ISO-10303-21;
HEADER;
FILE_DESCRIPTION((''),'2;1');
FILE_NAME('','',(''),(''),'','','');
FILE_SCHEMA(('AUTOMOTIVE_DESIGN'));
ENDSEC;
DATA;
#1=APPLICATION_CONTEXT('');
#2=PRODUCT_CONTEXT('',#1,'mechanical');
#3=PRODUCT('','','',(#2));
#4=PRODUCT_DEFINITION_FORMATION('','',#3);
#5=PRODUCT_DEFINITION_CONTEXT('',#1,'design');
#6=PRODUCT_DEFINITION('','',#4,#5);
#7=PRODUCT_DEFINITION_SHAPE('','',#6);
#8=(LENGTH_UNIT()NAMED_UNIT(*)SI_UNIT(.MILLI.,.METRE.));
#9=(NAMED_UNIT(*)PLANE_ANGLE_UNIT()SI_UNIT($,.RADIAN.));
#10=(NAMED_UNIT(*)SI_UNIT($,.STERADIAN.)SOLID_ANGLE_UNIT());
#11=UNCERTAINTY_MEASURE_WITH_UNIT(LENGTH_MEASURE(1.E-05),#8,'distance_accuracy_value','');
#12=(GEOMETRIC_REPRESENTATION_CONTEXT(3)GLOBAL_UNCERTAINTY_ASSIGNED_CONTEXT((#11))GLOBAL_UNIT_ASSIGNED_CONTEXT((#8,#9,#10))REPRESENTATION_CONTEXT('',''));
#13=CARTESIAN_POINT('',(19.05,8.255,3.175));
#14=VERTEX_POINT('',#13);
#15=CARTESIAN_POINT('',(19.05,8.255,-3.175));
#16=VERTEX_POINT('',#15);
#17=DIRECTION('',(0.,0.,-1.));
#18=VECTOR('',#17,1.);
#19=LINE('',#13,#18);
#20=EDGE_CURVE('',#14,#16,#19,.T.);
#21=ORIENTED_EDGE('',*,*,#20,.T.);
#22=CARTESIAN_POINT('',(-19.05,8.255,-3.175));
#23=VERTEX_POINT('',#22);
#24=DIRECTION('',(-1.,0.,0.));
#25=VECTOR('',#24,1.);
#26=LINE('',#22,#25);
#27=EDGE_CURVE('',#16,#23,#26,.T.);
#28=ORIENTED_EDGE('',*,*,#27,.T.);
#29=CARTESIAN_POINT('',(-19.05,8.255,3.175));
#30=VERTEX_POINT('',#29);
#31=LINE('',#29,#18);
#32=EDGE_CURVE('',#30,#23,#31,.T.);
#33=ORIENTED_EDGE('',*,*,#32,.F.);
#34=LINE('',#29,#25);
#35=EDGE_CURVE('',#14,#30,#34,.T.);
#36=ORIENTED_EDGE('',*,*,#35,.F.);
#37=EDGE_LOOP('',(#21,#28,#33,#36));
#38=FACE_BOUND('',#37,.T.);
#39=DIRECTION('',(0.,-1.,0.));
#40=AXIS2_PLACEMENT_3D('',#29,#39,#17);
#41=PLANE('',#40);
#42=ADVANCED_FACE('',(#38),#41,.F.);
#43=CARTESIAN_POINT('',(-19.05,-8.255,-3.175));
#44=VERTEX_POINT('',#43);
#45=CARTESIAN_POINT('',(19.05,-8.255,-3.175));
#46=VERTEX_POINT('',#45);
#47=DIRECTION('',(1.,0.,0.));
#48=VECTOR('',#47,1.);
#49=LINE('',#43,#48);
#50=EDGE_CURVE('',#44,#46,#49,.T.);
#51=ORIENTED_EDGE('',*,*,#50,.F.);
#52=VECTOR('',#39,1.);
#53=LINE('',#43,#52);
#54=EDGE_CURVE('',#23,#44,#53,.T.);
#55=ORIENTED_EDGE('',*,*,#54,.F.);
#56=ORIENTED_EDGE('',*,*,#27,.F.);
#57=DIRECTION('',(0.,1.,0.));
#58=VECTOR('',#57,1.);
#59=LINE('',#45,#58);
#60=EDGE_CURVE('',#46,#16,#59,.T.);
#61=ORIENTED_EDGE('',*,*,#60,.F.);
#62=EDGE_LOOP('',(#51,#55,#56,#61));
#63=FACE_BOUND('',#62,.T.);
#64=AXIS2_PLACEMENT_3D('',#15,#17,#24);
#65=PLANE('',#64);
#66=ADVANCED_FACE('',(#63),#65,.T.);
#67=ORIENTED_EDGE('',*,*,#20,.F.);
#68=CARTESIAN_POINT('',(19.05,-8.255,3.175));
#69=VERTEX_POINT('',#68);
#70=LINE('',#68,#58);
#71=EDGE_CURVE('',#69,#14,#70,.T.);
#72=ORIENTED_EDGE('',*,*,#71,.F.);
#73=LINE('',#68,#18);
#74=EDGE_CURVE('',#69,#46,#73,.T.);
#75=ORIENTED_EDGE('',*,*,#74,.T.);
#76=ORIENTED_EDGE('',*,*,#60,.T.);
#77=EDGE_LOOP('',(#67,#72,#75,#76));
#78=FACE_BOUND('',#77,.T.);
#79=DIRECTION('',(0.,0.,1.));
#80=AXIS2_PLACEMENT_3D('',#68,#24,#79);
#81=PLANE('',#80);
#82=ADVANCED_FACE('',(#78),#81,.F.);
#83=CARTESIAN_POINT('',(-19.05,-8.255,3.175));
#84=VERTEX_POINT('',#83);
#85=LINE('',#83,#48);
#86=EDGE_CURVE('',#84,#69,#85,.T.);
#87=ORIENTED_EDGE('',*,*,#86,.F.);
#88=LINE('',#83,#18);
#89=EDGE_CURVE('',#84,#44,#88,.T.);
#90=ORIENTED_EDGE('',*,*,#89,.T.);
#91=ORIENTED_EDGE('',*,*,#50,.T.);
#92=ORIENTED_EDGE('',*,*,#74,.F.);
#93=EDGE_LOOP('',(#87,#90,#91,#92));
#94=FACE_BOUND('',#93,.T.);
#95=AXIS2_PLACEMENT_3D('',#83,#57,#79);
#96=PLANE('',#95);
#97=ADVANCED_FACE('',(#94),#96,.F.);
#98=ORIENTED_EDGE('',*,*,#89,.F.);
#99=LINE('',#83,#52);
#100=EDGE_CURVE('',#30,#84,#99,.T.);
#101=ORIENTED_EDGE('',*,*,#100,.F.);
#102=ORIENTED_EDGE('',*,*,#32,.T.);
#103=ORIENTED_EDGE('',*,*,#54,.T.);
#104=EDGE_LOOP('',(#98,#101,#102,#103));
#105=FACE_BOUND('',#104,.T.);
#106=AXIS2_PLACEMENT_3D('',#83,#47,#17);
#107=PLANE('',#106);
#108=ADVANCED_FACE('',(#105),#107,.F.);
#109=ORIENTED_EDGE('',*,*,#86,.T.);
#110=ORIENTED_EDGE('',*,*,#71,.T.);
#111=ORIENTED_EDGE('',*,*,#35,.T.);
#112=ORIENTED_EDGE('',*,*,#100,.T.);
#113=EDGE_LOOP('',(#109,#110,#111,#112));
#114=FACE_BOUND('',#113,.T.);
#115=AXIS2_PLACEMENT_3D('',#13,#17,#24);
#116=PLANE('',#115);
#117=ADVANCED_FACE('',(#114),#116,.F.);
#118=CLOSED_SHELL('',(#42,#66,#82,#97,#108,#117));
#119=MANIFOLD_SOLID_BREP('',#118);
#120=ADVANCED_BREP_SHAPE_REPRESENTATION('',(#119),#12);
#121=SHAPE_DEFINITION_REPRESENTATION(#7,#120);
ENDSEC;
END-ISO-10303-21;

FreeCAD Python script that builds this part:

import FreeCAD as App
import Part
import Sketcher

V = App.Vector
Q = App.Units.Quantity

doc = App.newDocument("Part")
body = doc.addObject("PartDesign::Body", "Body")

# Sketch on XY plane
sketch1 = doc.addObject("Sketcher::SketchObject", "Sketch")
body.addObject(sketch1)
sketch1.AttachmentSupport = (doc.XY_Plane, [""])
sketch1.MapMode = "FlatFace"
sketch1.addGeometry([
    Part.LineSegment(V(-19, 8, 0), V(-19, -8, 0)),
    Part.LineSegment(V(-19, -8, 0), V(19, -8, 0)),
    Part.LineSegment(V(19, -8, 0), V(19, 8, 0)),
    Part.LineSegment(V(19, 8, 0), V(-19, 8, 0)),
], False)
sketch1.addConstraint([
    Sketcher.Constraint("Coincident", 0, 2, 1, 1),
    Sketcher.Constraint("Coincident", 1, 2, 2, 1),
    Sketcher.Constraint("Coincident", 2, 2, 3, 1),
    Sketcher.Constraint("Coincident", 3, 2, 0, 1),
    Sketcher.Constraint("Vertical", 0),
    Sketcher.Constraint("Horizontal", 1),
    Sketcher.Constraint("Vertical", 2),
    Sketcher.Constraint("Horizontal", 3),
    Sketcher.Constraint("Symmetric", 0, 2, 2, 2, -1, 1),
    Sketcher.Constraint("DistanceX", 1, 1, 1, 2, Q("1.5 in")),
    Sketcher.Constraint("DistanceY", 0, 2, 0, 1, Q("0.65 in")),
])
pad1 = doc.addObject("PartDesign::Pad", "Pad")
body.addObject(pad1)
pad1.Profile = sketch1
pad1.Length = Q("0.25 in")
pad1.Midplane = True

doc.recompute()
